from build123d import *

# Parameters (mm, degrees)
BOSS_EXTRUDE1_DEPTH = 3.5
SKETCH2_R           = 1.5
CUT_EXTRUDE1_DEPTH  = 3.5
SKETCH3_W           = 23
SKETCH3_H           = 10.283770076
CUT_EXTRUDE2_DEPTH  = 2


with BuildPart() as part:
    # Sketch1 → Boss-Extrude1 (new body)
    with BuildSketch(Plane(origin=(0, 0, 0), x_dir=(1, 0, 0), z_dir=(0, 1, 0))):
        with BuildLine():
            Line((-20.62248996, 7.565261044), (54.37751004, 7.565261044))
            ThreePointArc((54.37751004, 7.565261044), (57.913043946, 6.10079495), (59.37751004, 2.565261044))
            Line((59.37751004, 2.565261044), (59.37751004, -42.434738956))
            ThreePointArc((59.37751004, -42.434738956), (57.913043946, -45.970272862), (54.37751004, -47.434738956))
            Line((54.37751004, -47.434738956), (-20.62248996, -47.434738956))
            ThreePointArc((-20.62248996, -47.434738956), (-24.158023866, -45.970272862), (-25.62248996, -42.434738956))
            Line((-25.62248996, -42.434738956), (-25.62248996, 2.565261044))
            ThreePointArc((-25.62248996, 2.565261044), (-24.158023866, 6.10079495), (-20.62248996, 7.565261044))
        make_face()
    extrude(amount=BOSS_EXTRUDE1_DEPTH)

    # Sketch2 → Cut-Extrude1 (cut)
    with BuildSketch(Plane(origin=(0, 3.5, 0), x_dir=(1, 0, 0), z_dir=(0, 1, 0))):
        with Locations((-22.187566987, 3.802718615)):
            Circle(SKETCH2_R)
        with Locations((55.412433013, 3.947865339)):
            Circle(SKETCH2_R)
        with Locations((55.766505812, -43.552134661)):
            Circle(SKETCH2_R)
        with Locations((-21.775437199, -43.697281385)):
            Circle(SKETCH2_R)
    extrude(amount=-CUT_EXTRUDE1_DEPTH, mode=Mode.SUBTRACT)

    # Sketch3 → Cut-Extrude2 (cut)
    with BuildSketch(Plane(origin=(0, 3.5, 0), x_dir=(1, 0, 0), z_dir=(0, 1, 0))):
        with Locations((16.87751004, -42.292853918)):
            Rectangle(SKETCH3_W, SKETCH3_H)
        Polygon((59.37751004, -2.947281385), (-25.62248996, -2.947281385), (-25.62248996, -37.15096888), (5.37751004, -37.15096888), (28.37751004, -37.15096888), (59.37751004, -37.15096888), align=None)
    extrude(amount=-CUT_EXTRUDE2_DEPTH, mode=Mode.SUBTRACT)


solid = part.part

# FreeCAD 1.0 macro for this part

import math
import FreeCAD as App
import Part
import Sketcher
from FreeCAD import Vector


def add_polygon(sketch, points):
    """Adds a closed chain of lines whose ends are joined by coincident constraints."""
    first, n = sketch.GeometryCount, len(points)
    for a, b in zip(points, points[1:] + points[:1]):
        sketch.addGeometry(Part.LineSegment(App.Vector(*a, 0), App.Vector(*b, 0)), False)
    for i in range(n):
        sketch.addConstraint(Sketcher.Constraint("Coincident", first + i, 2, first + (i + 1) % n, 1))

doc = App.newDocument("Part")
body = doc.addObject("PartDesign::Body", "Body")

sketch1 = body.newObject("Sketcher::SketchObject", "Sketch")
sketch1.AttachmentSupport = (doc.getObject("XZ_Plane"), [""])
sketch1.MapMode = "FlatFace"
sketch1.addGeometry(Part.LineSegment(Vector(54, -8, 0), Vector(-21, -8, 0)), False)
sketch1.addGeometry(Part.ArcOfCircle(Part.Circle(Vector(-21, -3, 0), Vector(0, 0, 1), 5), math.radians(180), math.radians(270)), False)
sketch1.addGeometry(Part.LineSegment(Vector(-26, -3, 0), Vector(-26, 42, 0)), False)
sketch1.addGeometry(Part.ArcOfCircle(Part.Circle(Vector(-21, 42, 0), Vector(0, 0, 1), 5), math.radians(90), math.radians(180)), False)
sketch1.addGeometry(Part.LineSegment(Vector(-21, 47, 0), Vector(54, 47, 0)), False)
sketch1.addGeometry(Part.ArcOfCircle(Part.Circle(Vector(54, 42, 0), Vector(0, 0, 1), 5), math.radians(0), math.radians(90)), False)
sketch1.addGeometry(Part.LineSegment(Vector(59, 42, 0), Vector(59, -3, 0)), False)
sketch1.addGeometry(Part.ArcOfCircle(Part.Circle(Vector(54, -3, 0), Vector(0, 0, 1), 5), math.radians(-90), math.radians(0)), False)
sketch1.addConstraint(Sketcher.Constraint("Tangent", 0, 2, 1, 2))
sketch1.addConstraint(Sketcher.Constraint("Tangent", 1, 1, 2, 1))
sketch1.addConstraint(Sketcher.Constraint("Tangent", 2, 2, 3, 2))
sketch1.addConstraint(Sketcher.Constraint("Tangent", 3, 1, 4, 1))
sketch1.addConstraint(Sketcher.Constraint("Tangent", 4, 2, 5, 2))
sketch1.addConstraint(Sketcher.Constraint("Tangent", 5, 1, 6, 1))
sketch1.addConstraint(Sketcher.Constraint("Tangent", 6, 2, 7, 2))
sketch1.addConstraint(Sketcher.Constraint("Tangent", 7, 1, 0, 1))
sketch1.addConstraint(Sketcher.Constraint("Horizontal", 0))
sketch1.addConstraint(Sketcher.Constraint("Vertical", 2))
sketch1.addConstraint(Sketcher.Constraint("Horizontal", 4))
sketch1.addConstraint(Sketcher.Constraint("Vertical", 6))
sketch1.addConstraint(Sketcher.Constraint("Equal", 1, 3))
sketch1.addConstraint(Sketcher.Constraint("Equal", 3, 5))
sketch1.addConstraint(Sketcher.Constraint("Equal", 5, 7))
sketch1.addConstraint(Sketcher.Constraint("Radius", 1, 5.0))
sketch1.addConstraint(Sketcher.Constraint("DistanceX", 0, 2, 0, 1, 75.0))
sketch1.addConstraint(Sketcher.Constraint("DistanceY", 2, 1, 2, 2, 45.0))
sketch1.addConstraint(Sketcher.Constraint("DistanceX", 1, 3, -1, 1, 20.62249))
sketch1.addConstraint(Sketcher.Constraint("DistanceY", 1, 3, -1, 1, 2.565261))
pad1 = body.newObject("PartDesign::Pad", "Pad")
pad1.Profile = sketch1
pad1.Length = 3.5
pad1.Reversed = True

sketch2 = body.newObject("Sketcher::SketchObject", "Sketch001")
sketch2.AttachmentSupport = (doc.getObject("XZ_Plane"), [""])
sketch2.MapMode = "FlatFace"
sketch2.AttachmentOffset = App.Placement(Vector(0, 0, -3.5), App.Rotation())
sketch2.addGeometry(Part.Circle(Vector(-22.2, -3.8, 0), Vector(0, 0, 1), 1.5), False)
sketch2.addGeometry(Part.Circle(Vector(55.4, -3.9, 0), Vector(0, 0, 1), 1.5), False)
sketch2.addGeometry(Part.Circle(Vector(55.8, 43.6, 0), Vector(0, 0, 1), 1.5), False)
sketch2.addGeometry(Part.Circle(Vector(-21.8, 43.7, 0), Vector(0, 0, 1), 1.5), False)
sketch2.addConstraint(Sketcher.Constraint("Equal", 0, 1))
sketch2.addConstraint(Sketcher.Constraint("Equal", 1, 2))
sketch2.addConstraint(Sketcher.Constraint("Equal", 2, 3))
sketch2.addConstraint(Sketcher.Constraint("Diameter", 0, 3.0))
sketch2.addConstraint(Sketcher.Constraint("DistanceX", 0, 3, 1, 3, 77.6))
sketch2.addConstraint(Sketcher.Constraint("DistanceY", 1, 3, 2, 3, 47.5))
sketch2.addConstraint(Sketcher.Constraint("DistanceY", 0, 3, 3, 3, 47.5))
sketch2.addConstraint(Sketcher.Constraint("DistanceY", 0, 3, -1, 1, 3.802719))
sketch2.addConstraint(Sketcher.Constraint("DistanceX", 0, 3, 3, 3, 0.41213))
sketch2.addConstraint(Sketcher.Constraint("DistanceX", 0, 3, -1, 1, 22.187567))
sketch2.addConstraint(Sketcher.Constraint("DistanceY", 1, 3, -1, 1, 3.947865))
sketch2.addConstraint(Sketcher.Constraint("DistanceX", -1, 1, 2, 3, 55.766506))
pocket1 = body.newObject("PartDesign::Pocket", "Pocket")
pocket1.Profile = sketch2
pocket1.Length = 3.5
pocket1.Reversed = True

sketch3 = body.newObject("Sketcher::SketchObject", "Sketch002")
sketch3.AttachmentSupport = (doc.getObject("XZ_Plane"), [""])
sketch3.MapMode = "FlatFace"
sketch3.AttachmentOffset = App.Placement(Vector(0, 0, -3.5), App.Rotation())
add_polygon(sketch3, [(5, 37), (5, 47), (28, 47), (28, 37), (59, 37), (59, 3), (-26, 3), (-26, 37)])
sketch3.addConstraint(Sketcher.Constraint("Vertical", 0))
sketch3.addConstraint(Sketcher.Constraint("Horizontal", 1))
sketch3.addConstraint(Sketcher.Constraint("Vertical", 2))
sketch3.addConstraint(Sketcher.Constraint("Horizontal", 3))
sketch3.addConstraint(Sketcher.Constraint("Vertical", 4))
sketch3.addConstraint(Sketcher.Constraint("Horizontal", 5))
sketch3.addConstraint(Sketcher.Constraint("Vertical", 6))
sketch3.addConstraint(Sketcher.Constraint("Horizontal", 7))
sketch3.addConstraint(Sketcher.Constraint("Horizontal", 3, 2, 6, 2))
sketch3.addConstraint(Sketcher.Constraint("Equal", 3, 7))
sketch3.addConstraint(Sketcher.Constraint("DistanceX", 1, 1, 1, 2, 23.0))
sketch3.addConstraint(Sketcher.Constraint("DistanceX", 3, 1, 3, 2, 31.0))
sketch3.addConstraint(Sketcher.Constraint("DistanceY", 0, 1, 0, 2, 10.28377))
sketch3.addConstraint(Sketcher.Constraint("DistanceY", 4, 2, 4, 1, 34.203687))
sketch3.addConstraint(Sketcher.Constraint("DistanceX", -1, 1, 0, 2, 5.37751))
sketch3.addConstraint(Sketcher.Constraint("DistanceY", -1, 1, 0, 2, 47.434739))
pocket2 = body.newObject("PartDesign::Pocket", "Pocket001")
pocket2.Profile = sketch3
pocket2.Length = 2
pocket2.Reversed = True

doc.recompute()
